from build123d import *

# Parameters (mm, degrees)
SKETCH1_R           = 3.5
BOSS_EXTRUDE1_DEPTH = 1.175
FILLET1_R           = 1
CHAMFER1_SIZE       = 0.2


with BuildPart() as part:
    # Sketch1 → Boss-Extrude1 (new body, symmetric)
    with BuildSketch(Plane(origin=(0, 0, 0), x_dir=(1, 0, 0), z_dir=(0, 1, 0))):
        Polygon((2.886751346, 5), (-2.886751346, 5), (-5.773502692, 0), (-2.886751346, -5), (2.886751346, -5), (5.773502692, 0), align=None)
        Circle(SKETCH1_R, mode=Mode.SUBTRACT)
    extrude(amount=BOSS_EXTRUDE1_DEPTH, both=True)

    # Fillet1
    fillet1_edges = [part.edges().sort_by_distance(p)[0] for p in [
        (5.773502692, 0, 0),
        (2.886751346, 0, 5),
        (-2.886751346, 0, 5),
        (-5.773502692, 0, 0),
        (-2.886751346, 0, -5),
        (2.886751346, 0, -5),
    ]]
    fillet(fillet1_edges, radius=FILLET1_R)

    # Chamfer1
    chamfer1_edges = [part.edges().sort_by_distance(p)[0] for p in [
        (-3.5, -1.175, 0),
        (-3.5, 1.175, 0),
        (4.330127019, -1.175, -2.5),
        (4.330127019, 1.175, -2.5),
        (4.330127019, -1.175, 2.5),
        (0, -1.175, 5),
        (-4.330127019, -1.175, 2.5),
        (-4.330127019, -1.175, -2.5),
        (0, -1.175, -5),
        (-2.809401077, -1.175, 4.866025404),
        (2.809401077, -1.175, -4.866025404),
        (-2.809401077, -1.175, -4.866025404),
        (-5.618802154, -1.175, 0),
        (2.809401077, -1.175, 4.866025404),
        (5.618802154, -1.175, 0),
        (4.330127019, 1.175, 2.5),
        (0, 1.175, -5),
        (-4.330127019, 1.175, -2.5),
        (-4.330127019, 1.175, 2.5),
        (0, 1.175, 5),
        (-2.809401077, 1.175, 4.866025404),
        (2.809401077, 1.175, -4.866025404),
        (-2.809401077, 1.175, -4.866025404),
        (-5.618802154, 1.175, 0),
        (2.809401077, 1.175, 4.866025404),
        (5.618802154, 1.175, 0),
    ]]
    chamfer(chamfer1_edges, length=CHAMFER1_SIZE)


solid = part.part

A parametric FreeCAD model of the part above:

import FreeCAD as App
import Part
import Sketcher

V = App.Vector
Q = App.Units.Quantity


def edges_at(feature, points):
    """Names of the edges that pass closest to the given points."""
    edges = feature.Shape.Edges
    near = lambda p: min(range(len(edges)), key=lambda i: edges[i].distToShape(Part.Vertex(*p))[0])
    return sorted({f"Edge{near(p) + 1}" for p in points})


def add_polygon(sketch, points):
    """Adds a closed chain of lines whose ends are joined by coincident constraints."""
    first, n = sketch.GeometryCount, len(points)
    for a, b in zip(points, points[1:] + points[:1]):
        sketch.addGeometry(Part.LineSegment(App.Vector(*a, 0), App.Vector(*b, 0)), False)
    for i in range(n):
        sketch.addConstraint(Sketcher.Constraint("Coincident", first + i, 2, first + (i + 1) % n, 1))

doc = App.newDocument("Part")
body = doc.addObject("PartDesign::Body", "Body")

# Sketch on XZ plane
sketch1 = doc.addObject("Sketcher::SketchObject", "Sketch")
body.addObject(sketch1)
sketch1.AttachmentSupport = (doc.XZ_Plane, [""])
sketch1.MapMode = "FlatFace"
add_polygon(sketch1, [(2.9, -5), (-2.9, -5), (-5.8, 0), (-2.9, 5), (2.9, 5), (5.8, 0)])  # lines 0-5
sketch1.addGeometry(Part.Circle(V(0, 0, 0), V(0, 0, 1), 3.5), False)  # 6
sketch1.addConstraint([
    Sketcher.Constraint("Horizontal", 0),
    Sketcher.Constraint("Horizontal", 3),
    Sketcher.Constraint("Coincident", 6, 3, -1, 1),
    Sketcher.Constraint("Symmetric", 0, 2, 3, 2, -1, 1),
    Sketcher.Constraint("Symmetric", 1, 2, 4, 2, -1, 1),
    Sketcher.Constraint("PointOnObject", 1, 2, -1),
    Sketcher.Constraint("Parallel", 2, 5),
    Sketcher.Constraint("Vertical", 0, 2, 2, 2),
    Sketcher.Constraint("Diameter", 6, Q("7 mm")),
    Sketcher.Constraint("Angle", 1, Q("120 deg")),
    Sketcher.Constraint("DistanceY", 0, 2, -1, 1, Q("5 mm")),
    Sketcher.Constraint("DistanceX", 0, 2, 0, 1, Q("5.773503 mm")),
])
pad1 = doc.addObject("PartDesign::Pad", "Pad")
body.addObject(pad1)
pad1.Profile = sketch1
pad1.Length = 2.35
pad1.Midplane = True
doc.recompute()

fillet = doc.addObject("PartDesign::Fillet", "Fillet")
body.addObject(fillet)
fillet.Base = (pad1, edges_at(pad1, [
    (5.774, 0, 0),
    (2.887, 0, 5),
    (-2.887, 0, 5),
    (-5.774, 0, 0),
    (-2.887, 0, -5),
    (2.887, 0, -5),
]))
fillet.Radius = 1
doc.recompute()

chamfer = doc.addObject("PartDesign::Chamfer", "Chamfer")
body.addObject(chamfer)
chamfer.Base = (fillet, edges_at(fillet, [
    (-3.5, -1.175, 0),
    (-3.5, 1.175, 0),
    (4.33, -1.175, -2.5),
    (4.33, 1.175, -2.5),
    (4.33, -1.175, 2.5),
    (0, -1.175, 5),
    (-4.33, -1.175, 2.5),
    (-4.33, -1.175, -2.5),
    (0, -1.175, -5),
    (-2.809, -1.175, 4.866),
    (2.809, -1.175, -4.866),
    (-2.809, -1.175, -4.866),
    (-5.619, -1.175, 0),
    (2.809, -1.175, 4.866),
    (5.619, -1.175, 0),
    (4.33, 1.175, 2.5),
    (0, 1.175, -5),
    (-4.33, 1.175, -2.5),
    (-4.33, 1.175, 2.5),
    (0, 1.175, 5),
    (-2.809, 1.175, 4.866),
    (2.809, 1.175, -4.866),
    (-2.809, 1.175, -4.866),
    (-5.619, 1.175, 0),
    (2.809, 1.175, 4.866),
    (5.619, 1.175, 0),
]))
chamfer.Size = 0.2

doc.recompute()
